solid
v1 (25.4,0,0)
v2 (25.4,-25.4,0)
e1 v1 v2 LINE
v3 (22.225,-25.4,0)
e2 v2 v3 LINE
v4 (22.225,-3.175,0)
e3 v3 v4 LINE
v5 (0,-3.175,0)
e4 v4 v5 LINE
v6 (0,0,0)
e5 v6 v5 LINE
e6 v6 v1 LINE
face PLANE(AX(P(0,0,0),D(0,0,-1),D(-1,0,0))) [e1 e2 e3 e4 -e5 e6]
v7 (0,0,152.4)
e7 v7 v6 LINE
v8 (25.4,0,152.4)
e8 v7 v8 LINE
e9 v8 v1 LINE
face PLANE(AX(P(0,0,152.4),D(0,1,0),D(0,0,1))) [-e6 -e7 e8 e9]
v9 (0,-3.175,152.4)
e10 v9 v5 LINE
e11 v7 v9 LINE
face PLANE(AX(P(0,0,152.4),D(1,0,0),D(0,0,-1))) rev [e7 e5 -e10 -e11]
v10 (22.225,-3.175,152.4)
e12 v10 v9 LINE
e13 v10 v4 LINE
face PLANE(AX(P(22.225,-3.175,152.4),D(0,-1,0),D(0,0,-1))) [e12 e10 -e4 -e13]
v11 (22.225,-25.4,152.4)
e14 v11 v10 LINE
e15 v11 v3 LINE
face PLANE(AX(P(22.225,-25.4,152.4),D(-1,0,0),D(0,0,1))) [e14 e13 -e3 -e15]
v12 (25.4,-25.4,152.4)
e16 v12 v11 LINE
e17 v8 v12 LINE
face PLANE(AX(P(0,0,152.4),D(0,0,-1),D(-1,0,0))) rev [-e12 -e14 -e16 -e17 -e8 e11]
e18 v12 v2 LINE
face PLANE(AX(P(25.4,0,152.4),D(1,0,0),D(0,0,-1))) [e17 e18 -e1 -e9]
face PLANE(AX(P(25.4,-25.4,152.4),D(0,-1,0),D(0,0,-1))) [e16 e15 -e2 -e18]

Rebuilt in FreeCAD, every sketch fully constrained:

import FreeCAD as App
import Part
import Sketcher
from FreeCAD import Vector
Q = App.Units.Quantity


def add_polygon(sketch, points):
    """Adds a closed chain of lines whose ends are joined by coincident constraints."""
    first, n = sketch.GeometryCount, len(points)
    for a, b in zip(points, points[1:] + points[:1]):
        sketch.addGeometry(Part.LineSegment(App.Vector(*a, 0), App.Vector(*b, 0)), False)
    for i in range(n):
        sketch.addConstraint(Sketcher.Constraint("Coincident", first + i, 2, first + (i + 1) % n, 1))

doc = App.newDocument("Part")
body = doc.addObject("PartDesign::Body", "Body")

# Sketch on XY plane
sketch1 = doc.addObject("Sketcher::SketchObject", "Sketch")
body.addObject(sketch1)
sketch1.AttachmentSupport = (doc.XY_Plane, [""])
sketch1.MapMode = "FlatFace"
add_polygon(sketch1, [(25.4, 0), (0, 0), (0, -3.2), (22.2, -3.2), (22.2, -25.4), (25.4, -25.4)])  # lines 0-5
sketch1.addConstraint([
    Sketcher.Constraint("Horizontal", 0),
    Sketcher.Constraint("Vertical", 1),
    Sketcher.Constraint("Horizontal", 2),
    Sketcher.Constraint("Vertical", 3),
    Sketcher.Constraint("Horizontal", 4),
    Sketcher.Constraint("Vertical", 5),
    Sketcher.Constraint("Coincident", 0, 2, -1, 1),
    Sketcher.Constraint("Equal", 4, 1),
    Sketcher.Constraint("Equal", 2, 3),
    Sketcher.Constraint("DistanceX", 0, 2, 0, 1, Q("1 in")),
    Sketcher.Constraint("DistanceX", 2, 1, 2, 2, Q("0.875 in")),
])
pad1 = doc.addObject("PartDesign::Pad", "Pad")
body.addObject(pad1)
pad1.Profile = sketch1
pad1.Length = Q("6 in")

doc.recompute()
